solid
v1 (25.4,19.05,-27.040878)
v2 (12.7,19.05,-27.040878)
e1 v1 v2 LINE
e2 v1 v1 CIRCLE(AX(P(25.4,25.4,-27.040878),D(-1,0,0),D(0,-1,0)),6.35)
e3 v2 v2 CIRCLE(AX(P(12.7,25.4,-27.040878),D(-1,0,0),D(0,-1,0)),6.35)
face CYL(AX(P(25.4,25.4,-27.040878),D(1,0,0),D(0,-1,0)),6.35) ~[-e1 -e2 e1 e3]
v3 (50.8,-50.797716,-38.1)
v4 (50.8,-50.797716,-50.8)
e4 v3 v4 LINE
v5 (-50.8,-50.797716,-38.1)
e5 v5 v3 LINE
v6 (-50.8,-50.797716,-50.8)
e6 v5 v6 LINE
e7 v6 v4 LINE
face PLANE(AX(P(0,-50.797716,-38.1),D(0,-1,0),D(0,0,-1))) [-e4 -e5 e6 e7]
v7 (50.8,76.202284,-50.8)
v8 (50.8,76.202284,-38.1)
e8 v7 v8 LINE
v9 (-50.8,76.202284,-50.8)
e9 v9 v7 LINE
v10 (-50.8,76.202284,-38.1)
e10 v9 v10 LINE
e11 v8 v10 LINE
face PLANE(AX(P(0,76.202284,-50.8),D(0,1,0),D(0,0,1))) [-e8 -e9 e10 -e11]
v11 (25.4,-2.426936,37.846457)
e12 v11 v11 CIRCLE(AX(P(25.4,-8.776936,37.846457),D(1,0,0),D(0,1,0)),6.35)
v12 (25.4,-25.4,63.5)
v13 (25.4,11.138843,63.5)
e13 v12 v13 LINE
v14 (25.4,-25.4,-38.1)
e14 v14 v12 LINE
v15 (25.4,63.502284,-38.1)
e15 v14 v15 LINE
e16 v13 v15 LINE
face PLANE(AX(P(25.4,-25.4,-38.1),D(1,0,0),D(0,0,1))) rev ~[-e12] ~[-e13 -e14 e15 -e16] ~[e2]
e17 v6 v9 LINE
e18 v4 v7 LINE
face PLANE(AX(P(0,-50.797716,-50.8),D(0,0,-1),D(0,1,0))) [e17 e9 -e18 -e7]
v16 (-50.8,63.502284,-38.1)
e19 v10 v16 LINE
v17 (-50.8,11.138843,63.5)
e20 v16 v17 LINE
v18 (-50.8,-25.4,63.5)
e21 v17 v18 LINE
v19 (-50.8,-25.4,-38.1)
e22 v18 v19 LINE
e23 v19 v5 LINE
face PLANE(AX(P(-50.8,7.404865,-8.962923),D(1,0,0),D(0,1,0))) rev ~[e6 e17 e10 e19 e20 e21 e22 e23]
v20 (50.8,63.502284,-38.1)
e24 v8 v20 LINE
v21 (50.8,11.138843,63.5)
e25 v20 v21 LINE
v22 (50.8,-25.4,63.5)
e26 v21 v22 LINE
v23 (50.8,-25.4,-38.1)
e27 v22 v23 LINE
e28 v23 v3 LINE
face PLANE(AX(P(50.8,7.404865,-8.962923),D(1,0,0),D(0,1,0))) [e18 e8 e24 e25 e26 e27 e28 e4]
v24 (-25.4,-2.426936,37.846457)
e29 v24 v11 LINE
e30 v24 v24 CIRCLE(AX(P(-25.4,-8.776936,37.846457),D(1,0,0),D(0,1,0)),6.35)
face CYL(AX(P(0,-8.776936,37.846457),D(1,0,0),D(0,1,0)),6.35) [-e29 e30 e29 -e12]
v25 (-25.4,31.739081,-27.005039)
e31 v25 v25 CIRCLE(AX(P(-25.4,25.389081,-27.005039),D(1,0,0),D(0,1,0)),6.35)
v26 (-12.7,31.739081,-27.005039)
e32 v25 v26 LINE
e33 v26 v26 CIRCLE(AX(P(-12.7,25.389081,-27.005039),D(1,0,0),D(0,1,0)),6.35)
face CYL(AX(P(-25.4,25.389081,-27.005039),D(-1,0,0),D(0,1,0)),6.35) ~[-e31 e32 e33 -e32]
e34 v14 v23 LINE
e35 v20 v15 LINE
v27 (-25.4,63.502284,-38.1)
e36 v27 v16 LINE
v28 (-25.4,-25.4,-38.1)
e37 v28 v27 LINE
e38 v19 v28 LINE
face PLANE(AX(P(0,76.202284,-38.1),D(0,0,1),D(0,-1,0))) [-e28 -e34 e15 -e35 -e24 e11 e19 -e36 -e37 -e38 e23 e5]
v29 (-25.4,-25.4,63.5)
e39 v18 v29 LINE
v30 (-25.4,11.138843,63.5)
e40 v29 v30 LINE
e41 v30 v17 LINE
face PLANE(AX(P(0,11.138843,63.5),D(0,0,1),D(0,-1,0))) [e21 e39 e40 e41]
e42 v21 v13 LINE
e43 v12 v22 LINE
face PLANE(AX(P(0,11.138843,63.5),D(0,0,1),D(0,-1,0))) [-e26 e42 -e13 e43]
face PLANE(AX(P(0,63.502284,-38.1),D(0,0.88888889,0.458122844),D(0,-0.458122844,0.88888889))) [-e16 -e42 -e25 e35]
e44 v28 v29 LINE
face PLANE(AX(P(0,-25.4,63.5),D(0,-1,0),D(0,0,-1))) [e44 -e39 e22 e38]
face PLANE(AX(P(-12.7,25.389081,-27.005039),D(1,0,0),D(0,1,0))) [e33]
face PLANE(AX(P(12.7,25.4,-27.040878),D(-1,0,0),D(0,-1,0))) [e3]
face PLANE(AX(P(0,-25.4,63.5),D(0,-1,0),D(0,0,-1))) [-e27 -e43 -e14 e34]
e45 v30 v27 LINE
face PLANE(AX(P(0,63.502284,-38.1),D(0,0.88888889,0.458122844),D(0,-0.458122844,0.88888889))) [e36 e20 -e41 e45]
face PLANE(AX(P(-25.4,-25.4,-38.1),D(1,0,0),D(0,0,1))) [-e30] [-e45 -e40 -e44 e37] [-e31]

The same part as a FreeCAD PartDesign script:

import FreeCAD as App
import Part
import Sketcher
Q = App.Units.Quantity


def add_polygon(sketch, points):
    """Adds a closed chain of lines whose ends are joined by coincident constraints."""
    first, n = sketch.GeometryCount, len(points)
    for a, b in zip(points, points[1:] + points[:1]):
        sketch.addGeometry(Part.LineSegment(App.Vector(*a, 0), App.Vector(*b, 0)), False)
    for i in range(n):
        sketch.addConstraint(Sketcher.Constraint("Coincident", first + i, 2, first + (i + 1) % n, 1))

doc = App.newDocument("Part")
params = doc.addObject("Spreadsheet::Sheet", "Params")
for row, (alias, value) in enumerate([
    ("sketch1_width", "5 in"),
    ("sketch1_height", "4 in"),
    ("sketch1_width2", "0.5 in"),
    ("sketch1_length", "4.5 in"),
    ("pad1_length", "4 in"),
    ("sketch2_width", "2 in"),
    ("sketch2_height", "4 in"),
    ("sketch3_diameter", "0.5 in"),
    ("pad2_length", "2 in"),
    ("sketch4_diameter", "0.5 in"),
    ("pad3_length", "0.5 in"),
    ("sketch5_diameter", "0.5 in"),
    ("pad4_length", "0.5 in"),
], start=1):
    params.set(f"A{row}", alias)
    params.set(f"B{row}", "=" + value)
    params.setAlias(f"B{row}", alias)

body = doc.addObject("PartDesign::Body", "Body")

# Sketch on YZ plane
sketch1 = body.newObject("Sketcher::SketchObject", "Sketch")
sketch1.AttachmentSupport = (doc.getObject("YZ_Plane"), [""])
sketch1.MapMode = "FlatFace"
add_polygon(sketch1, [(11.138843, 63.5), (-25.4, 63.5), (-25.4, -38.1), (-50.797716, -38.1), (-50.797716, -50.8), (76.202284, -50.8), (76.202284, -38.1), (63.502284, -38.1)])  # lines 0-7
sketch1.addConstraint([
    Sketcher.Constraint("Horizontal", 0),
    Sketcher.Constraint("Vertical", 1),
    Sketcher.Constraint("Horizontal", 2),
    Sketcher.Constraint("Vertical", 3),
    Sketcher.Constraint("Horizontal", 4),
    Sketcher.Constraint("Vertical", 5),
    Sketcher.Constraint("Horizontal", 6),
    Sketcher.Constraint("Horizontal", 2, 2, 5, 2),
    Sketcher.Constraint("Equal", 6, 3),
    Sketcher.Constraint("DistanceX", 4, 1, 4, 2, Q("5 in")),
    Sketcher.Constraint("DistanceY", 1, 2, 1, 1, Q("4 in")),
    Sketcher.Constraint("DistanceX", 6, 2, 6, 1, Q("0.5 in")),
    Sketcher.Constraint("DistanceX", 0, 2, -1, 1, Q("1 in")),
    Sketcher.Constraint("DistanceY", 3, 2, -1, 1, Q("2 in")),
    Sketcher.Constraint("Distance", 7, Q("4.5 in")),
    Sketcher.Constraint("DistanceX", 0, 2, 0, 1, Q("36.538843 mm")),
])
sketch1.setExpression("Constraints[17]", "Params.sketch1_width")
sketch1.setExpression("Constraints[18]", "Params.sketch1_height")
sketch1.setExpression("Constraints[19]", "Params.sketch1_width2")
sketch1.setExpression("Constraints[22]", "Params.sketch1_length")
pad1 = body.newObject("PartDesign::Pad", "Pad")
pad1.Profile = sketch1
pad1.setExpression("Length", "Params.pad1_length")
pad1.Midplane = True

# Sketch on XZ plane
sketch2 = body.newObject("Sketcher::SketchObject", "Sketch001")
sketch2.AttachmentSupport = (doc.getObject("XZ_Plane"), [""])
sketch2.MapMode = "FlatFace"
sketch2.AttachmentOffset = App.Placement(App.Vector(0, 0, 1 * 25.4), App.Rotation())
add_polygon(sketch2, [(-25.4, 63.5), (-25.4, -38.1), (25.4, -38.1), (25.4, 63.5)])  # lines 0-3
sketch2.addConstraint([
    Sketcher.Constraint("Vertical", 0),
    Sketcher.Constraint("Horizontal", 1),
    Sketcher.Constraint("Vertical", 2),
    Sketcher.Constraint("Horizontal", 3),
    Sketcher.Constraint("DistanceX", 1, 1, 1, 2, Q("2 in")),
    Sketcher.Constraint("DistanceY", 0, 2, 0, 1, Q("4 in")),
    Sketcher.Constraint("DistanceX", 0, 2, -1, 1, Q("1 in")),
    Sketcher.Constraint("DistanceY", 0, 2, -1, 1, Q("1.5 in")),
])
sketch2.setExpression("Constraints[8]", "Params.sketch2_width")
sketch2.setExpression("Constraints[9]", "Params.sketch2_height")
pocket1 = body.newObject("PartDesign::Pocket", "Pocket")
pocket1.Profile = sketch2
pocket1.Type = "ThroughAll"

# Sketch on YZ plane
sketch3 = body.newObject("Sketcher::SketchObject", "Sketch002")
sketch3.AttachmentSupport = (doc.getObject("YZ_Plane"), [""])
sketch3.MapMode = "FlatFace"
sketch3.addGeometry(Part.Circle(App.Vector(-8.776936, 37.846457, 0), App.Vector(0, 0, 1), 6.35), False)
sketch3.addConstraint([
    Sketcher.Constraint("Diameter", 0, Q("0.5 in")),
    Sketcher.Constraint("DistanceX", 0, 3, -1, 1, Q("8.776936 mm")),
    Sketcher.Constraint("DistanceY", -1, 1, 0, 3, Q("37.846457 mm")),
])
sketch3.setExpression("Constraints[0]", "Params.sketch3_diameter")
pad2 = body.newObject("PartDesign::Pad", "Pad001")
pad2.Profile = sketch3
pad2.setExpression("Length", "Params.pad2_length")
pad2.Midplane = True

# Sketch on YZ plane
sketch4 = body.newObject("Sketcher::SketchObject", "Sketch003")
sketch4.AttachmentSupport = (doc.getObject("YZ_Plane"), [""])
sketch4.MapMode = "FlatFace"
sketch4.AttachmentOffset = App.Placement(App.Vector(0, 0, -1 * 25.4), App.Rotation())
sketch4.addGeometry(Part.Circle(App.Vector(25.389081, -27.005039, 0), App.Vector(0, 0, 1), 6.35), False)
sketch4.addConstraint([
    Sketcher.Constraint("Diameter", 0, Q("0.5 in")),
    Sketcher.Constraint("DistanceX", -1, 1, 0, 3, Q("25.389081 mm")),
    Sketcher.Constraint("DistanceY", 0, 3, -1, 1, Q("27.005039 mm")),
])
sketch4.setExpression("Constraints[0]", "Params.sketch4_diameter")
pad3 = body.newObject("PartDesign::Pad", "Pad002")
pad3.Profile = sketch4
pad3.setExpression("Length", "Params.pad3_length")

# Sketch on YZ plane
sketch5 = body.newObject("Sketcher::SketchObject", "Sketch004")
sketch5.AttachmentSupport = (doc.getObject("YZ_Plane"), [""])
sketch5.MapMode = "FlatFace"
sketch5.AttachmentOffset = App.Placement(App.Vector(0, 0, 1 * 25.4), App.Rotation())
sketch5.addGeometry(Part.Circle(App.Vector(25.4, -27.040878, 0), App.Vector(0, 0, 1), 6.35), False)
sketch5.addConstraint([
    Sketcher.Constraint("Diameter", 0, Q("0.5 in")),
    Sketcher.Constraint("DistanceX", -1, 1, 0, 3, Q("1 in")),
    Sketcher.Constraint("DistanceY", 0, 3, -1, 1, Q("27.040878 mm")),
])
sketch5.setExpression("Constraints[0]", "Params.sketch5_diameter")
pad4 = body.newObject("PartDesign::Pad", "Pad003")
pad4.Profile = sketch5
pad4.setExpression("Length", "Params.pad4_length")
pad4.Reversed = True

doc.recompute()
